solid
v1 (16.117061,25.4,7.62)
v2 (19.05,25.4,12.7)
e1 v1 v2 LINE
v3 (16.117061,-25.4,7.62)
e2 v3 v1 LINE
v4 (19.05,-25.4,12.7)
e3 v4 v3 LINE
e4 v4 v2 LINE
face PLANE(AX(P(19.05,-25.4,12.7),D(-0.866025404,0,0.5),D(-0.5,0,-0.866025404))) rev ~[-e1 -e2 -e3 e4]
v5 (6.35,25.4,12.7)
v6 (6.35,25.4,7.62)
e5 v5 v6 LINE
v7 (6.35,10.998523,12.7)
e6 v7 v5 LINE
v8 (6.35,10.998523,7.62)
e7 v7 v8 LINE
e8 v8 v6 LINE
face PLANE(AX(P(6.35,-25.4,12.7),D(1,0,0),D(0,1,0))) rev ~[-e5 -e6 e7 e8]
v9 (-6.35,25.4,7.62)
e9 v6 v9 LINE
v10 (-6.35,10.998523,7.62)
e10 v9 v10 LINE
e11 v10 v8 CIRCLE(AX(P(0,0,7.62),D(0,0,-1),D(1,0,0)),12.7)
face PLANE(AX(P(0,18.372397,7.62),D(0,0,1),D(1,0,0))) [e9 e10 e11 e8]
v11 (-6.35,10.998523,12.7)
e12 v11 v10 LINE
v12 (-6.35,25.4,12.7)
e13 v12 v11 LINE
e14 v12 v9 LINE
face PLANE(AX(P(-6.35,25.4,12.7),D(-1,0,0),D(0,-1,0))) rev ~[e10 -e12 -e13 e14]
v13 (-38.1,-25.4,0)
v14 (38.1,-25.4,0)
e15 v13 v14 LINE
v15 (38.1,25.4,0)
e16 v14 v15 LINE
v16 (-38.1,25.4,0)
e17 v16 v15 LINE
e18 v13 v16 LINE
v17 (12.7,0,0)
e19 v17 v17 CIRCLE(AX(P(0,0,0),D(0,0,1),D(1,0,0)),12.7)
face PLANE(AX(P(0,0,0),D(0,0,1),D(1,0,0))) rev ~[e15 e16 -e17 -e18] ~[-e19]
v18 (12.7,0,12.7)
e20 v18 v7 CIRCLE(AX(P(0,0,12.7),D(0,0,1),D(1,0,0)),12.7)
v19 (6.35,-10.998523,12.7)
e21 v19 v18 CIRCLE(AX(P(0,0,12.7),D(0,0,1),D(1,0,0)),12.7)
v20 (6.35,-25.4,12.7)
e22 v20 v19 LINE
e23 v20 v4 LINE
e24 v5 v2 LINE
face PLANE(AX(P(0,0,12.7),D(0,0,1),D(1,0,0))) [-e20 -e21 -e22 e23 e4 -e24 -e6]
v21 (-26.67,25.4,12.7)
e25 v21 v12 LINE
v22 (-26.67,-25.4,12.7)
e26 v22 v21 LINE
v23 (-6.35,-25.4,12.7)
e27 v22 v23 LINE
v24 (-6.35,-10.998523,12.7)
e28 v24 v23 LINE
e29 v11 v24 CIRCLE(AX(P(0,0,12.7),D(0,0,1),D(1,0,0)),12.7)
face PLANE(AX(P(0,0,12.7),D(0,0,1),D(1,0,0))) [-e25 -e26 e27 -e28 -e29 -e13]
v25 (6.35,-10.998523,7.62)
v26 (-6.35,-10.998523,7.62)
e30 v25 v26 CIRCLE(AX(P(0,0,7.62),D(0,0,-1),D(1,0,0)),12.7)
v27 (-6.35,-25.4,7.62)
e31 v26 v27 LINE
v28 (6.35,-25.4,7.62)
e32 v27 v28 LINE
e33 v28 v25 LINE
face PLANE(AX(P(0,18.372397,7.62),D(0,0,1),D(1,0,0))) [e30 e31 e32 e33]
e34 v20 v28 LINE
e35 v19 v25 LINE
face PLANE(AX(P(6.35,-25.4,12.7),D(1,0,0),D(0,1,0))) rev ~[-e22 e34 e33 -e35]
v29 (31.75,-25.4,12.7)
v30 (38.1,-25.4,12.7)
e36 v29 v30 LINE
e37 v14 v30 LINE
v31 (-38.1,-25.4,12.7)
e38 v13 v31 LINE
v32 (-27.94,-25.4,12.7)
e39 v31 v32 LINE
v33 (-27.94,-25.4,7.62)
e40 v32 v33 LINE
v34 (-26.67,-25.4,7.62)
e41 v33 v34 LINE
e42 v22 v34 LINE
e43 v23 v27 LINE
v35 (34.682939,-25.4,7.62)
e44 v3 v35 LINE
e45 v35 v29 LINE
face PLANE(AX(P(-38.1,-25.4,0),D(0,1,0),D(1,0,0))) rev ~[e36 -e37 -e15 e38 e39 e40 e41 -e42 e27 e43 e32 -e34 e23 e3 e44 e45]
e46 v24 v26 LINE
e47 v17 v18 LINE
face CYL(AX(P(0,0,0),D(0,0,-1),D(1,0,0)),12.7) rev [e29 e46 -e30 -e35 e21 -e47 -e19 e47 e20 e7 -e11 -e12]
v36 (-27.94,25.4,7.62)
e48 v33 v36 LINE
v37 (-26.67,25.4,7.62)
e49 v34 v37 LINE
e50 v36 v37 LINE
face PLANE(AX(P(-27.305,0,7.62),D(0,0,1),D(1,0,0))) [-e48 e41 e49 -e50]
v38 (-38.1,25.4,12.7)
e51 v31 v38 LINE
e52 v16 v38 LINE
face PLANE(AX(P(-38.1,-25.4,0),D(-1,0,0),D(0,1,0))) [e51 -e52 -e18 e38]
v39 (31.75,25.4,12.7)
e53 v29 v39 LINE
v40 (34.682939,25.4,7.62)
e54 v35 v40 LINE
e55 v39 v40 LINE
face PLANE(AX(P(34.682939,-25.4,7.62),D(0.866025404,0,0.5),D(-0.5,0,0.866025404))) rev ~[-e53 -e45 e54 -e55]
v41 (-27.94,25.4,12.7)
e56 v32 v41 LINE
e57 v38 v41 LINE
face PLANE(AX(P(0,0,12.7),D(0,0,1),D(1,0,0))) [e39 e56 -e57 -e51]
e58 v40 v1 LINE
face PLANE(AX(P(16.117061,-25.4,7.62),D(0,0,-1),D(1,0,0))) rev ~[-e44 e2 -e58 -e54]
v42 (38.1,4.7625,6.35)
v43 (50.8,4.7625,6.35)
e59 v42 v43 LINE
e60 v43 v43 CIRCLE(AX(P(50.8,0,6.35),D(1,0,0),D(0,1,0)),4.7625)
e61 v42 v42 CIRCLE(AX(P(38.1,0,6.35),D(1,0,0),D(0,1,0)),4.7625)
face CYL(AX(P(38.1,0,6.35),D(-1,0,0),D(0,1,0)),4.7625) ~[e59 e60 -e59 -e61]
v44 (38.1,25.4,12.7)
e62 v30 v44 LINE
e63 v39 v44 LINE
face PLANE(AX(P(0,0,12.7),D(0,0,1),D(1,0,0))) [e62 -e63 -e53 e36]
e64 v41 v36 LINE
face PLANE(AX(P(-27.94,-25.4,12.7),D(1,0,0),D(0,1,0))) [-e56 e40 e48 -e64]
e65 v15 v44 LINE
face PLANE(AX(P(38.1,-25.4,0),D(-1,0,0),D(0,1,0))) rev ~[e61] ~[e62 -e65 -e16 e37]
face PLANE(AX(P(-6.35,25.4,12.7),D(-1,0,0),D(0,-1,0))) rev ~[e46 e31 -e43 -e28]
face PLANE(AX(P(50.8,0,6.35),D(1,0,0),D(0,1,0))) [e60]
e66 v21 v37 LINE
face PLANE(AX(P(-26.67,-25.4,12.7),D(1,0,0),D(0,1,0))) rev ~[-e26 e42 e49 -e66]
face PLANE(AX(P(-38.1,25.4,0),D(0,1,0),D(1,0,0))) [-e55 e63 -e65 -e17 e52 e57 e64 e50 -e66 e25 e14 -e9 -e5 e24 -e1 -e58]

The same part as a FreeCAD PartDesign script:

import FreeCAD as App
import Part
import Sketcher

V = App.Vector
Q = App.Units.Quantity

doc = App.newDocument("Part")
params = doc.addObject("Spreadsheet::Sheet", "Params")
for row, (alias, value) in enumerate([
    ("sketch1_diameter", "1 in"),
    ("sketch1_width", "3 in"),
    ("sketch1_height", "2 in"),
    ("pad1_length", "0.5 in"),
    ("sketch2_height", "2 in"),
    ("sketch2_width", "0.5 in"),
    ("sketch2_width2", "0.05 in"),
    ("pocket1_length", "0.2 in"),
    ("sketch3_width", "0.5 in"),
    ("sketch4_diameter", "0.375 in"),
    ("pad2_length", "0.5 in"),
], start=1):
    params.set(f"A{row}", alias)
    params.set(f"B{row}", "=" + value)
    params.setAlias(f"B{row}", alias)

body = doc.addObject("PartDesign::Body", "Body")

# Sketch on XY plane
sketch1 = body.newObject("Sketcher::SketchObject", "Sketch")
sketch1.AttachmentSupport = (doc.getObject("XY_Plane"), [""])
sketch1.MapMode = "FlatFace"
sketch1.addGeometry(Part.LineSegment(V(-38, 25, 0), V(-38, -25, 0)), False)
sketch1.addGeometry(Part.LineSegment(V(-38, -25, 0), V(38, -25, 0)), False)
sketch1.addGeometry(Part.LineSegment(V(38, -25, 0), V(38, 25, 0)), False)
sketch1.addGeometry(Part.LineSegment(V(38, 25, 0), V(-38, 25, 0)), False)
sketch1.addGeometry(Part.Circle(V(0, 0, 0), V(0, 0, 1), 13), False)
sketch1.addConstraint(Sketcher.Constraint("Coincident", 0, 2, 1, 1))
sketch1.addConstraint(Sketcher.Constraint("Coincident", 1, 2, 2, 1))
sketch1.addConstraint(Sketcher.Constraint("Coincident", 2, 2, 3, 1))
sketch1.addConstraint(Sketcher.Constraint("Coincident", 3, 2, 0, 1))
sketch1.addConstraint(Sketcher.Constraint("Vertical", 0))
sketch1.addConstraint(Sketcher.Constraint("Horizontal", 1))
sketch1.addConstraint(Sketcher.Constraint("Vertical", 2))
sketch1.addConstraint(Sketcher.Constraint("Horizontal", 3))
sketch1.addConstraint(Sketcher.Constraint("Coincident", 4, 3, -1, 1))
sketch1.addConstraint(Sketcher.Constraint("Symmetric", 0, 2, 2, 2, -1, 1))
sketch1.addConstraint(Sketcher.Constraint("Diameter", 4, Q("1 in")))
sketch1.addConstraint(Sketcher.Constraint("DistanceX", 1, 1, 1, 2, Q("3 in")))
sketch1.addConstraint(Sketcher.Constraint("DistanceY", 0, 2, 0, 1, Q("2 in")))
sketch1.setExpression("Constraints[10]", "Params.sketch1_diameter")
sketch1.setExpression("Constraints[11]", "Params.sketch1_width")
sketch1.setExpression("Constraints[12]", "Params.sketch1_height")
pad1 = body.newObject("PartDesign::Pad", "Pad")
pad1.Profile = sketch1
pad1.setExpression("Length", "Params.pad1_length")

# Sketch on XY plane
sketch2 = body.newObject("Sketcher::SketchObject", "Sketch001")
sketch2.AttachmentSupport = (doc.getObject("XY_Plane"), [""])
sketch2.MapMode = "FlatFace"
sketch2.AttachmentOffset = App.Placement(V(0, 0, 0.5 * 25.4), App.Rotation())
sketch2.addGeometry(Part.LineSegment(V(-27.9, 25.4, 0), V(-27.9, -25.4, 0)), False)
sketch2.addGeometry(Part.LineSegment(V(-27.9, -25.4, 0), V(-26.7, -25.4, 0)), False)
sketch2.addGeometry(Part.LineSegment(V(-26.7, -25.4, 0), V(-26.7, 25.4, 0)), False)
sketch2.addGeometry(Part.LineSegment(V(-26.7, 25.4, 0), V(-27.9, 25.4, 0)), False)
sketch2.addGeometry(Part.LineSegment(V(6.3, 25.4, 0), V(-6.3, 25.4, 0)), False)
sketch2.addGeometry(Part.LineSegment(V(-6.3, 25.4, 0), V(-6.3, -25.4, 0)), False)
sketch2.addGeometry(Part.LineSegment(V(-6.3, -25.4, 0), V(6.3, -25.4, 0)), False)
sketch2.addGeometry(Part.LineSegment(V(6.3, -25.4, 0), V(6.3, 25.4, 0)), False)
sketch2.addConstraint(Sketcher.Constraint("Coincident", 0, 2, 1, 1))
sketch2.addConstraint(Sketcher.Constraint("Coincident", 1, 2, 2, 1))
sketch2.addConstraint(Sketcher.Constraint("Coincident", 2, 2, 3, 1))
sketch2.addConstraint(Sketcher.Constraint("Coincident", 3, 2, 0, 1))
sketch2.addConstraint(Sketcher.Constraint("Coincident", 4, 2, 5, 1))
sketch2.addConstraint(Sketcher.Constraint("Coincident", 5, 2, 6, 1))
sketch2.addConstraint(Sketcher.Constraint("Coincident", 6, 2, 7, 1))
sketch2.addConstraint(Sketcher.Constraint("Coincident", 7, 2, 4, 1))
sketch2.addConstraint(Sketcher.Constraint("Vertical", 0))
sketch2.addConstraint(Sketcher.Constraint("Horizontal", 1))
sketch2.addConstraint(Sketcher.Constraint("Vertical", 2))
sketch2.addConstraint(Sketcher.Constraint("Horizontal", 3))
sketch2.addConstraint(Sketcher.Constraint("Horizontal", 4))
sketch2.addConstraint(Sketcher.Constraint("Vertical", 5))
sketch2.addConstraint(Sketcher.Constraint("Horizontal", 6))
sketch2.addConstraint(Sketcher.Constraint("Vertical", 7))
sketch2.addConstraint(Sketcher.Constraint("Symmetric", 4, 2, 6, 2, -1, 1))
sketch2.addConstraint(Sketcher.Constraint("Horizontal", 3, 2, 4, 2))
sketch2.addConstraint(Sketcher.Constraint("Horizontal", 1, 2, 5, 2))
sketch2.addConstraint(Sketcher.Constraint("DistanceY", 0, 2, 0, 1, Q("2 in")))
sketch2.addConstraint(Sketcher.Constraint("DistanceX", 4, 2, 4, 1, Q("0.5 in")))
sketch2.addConstraint(Sketcher.Constraint("DistanceX", 1, 1, 1, 2, Q("0.05 in")))
sketch2.addConstraint(Sketcher.Constraint("DistanceX", 0, 2, -1, 1, Q("1.1 in")))
sketch2.setExpression("Constraints[19]", "Params.sketch2_height")
sketch2.setExpression("Constraints[20]", "Params.sketch2_width")
sketch2.setExpression("Constraints[21]", "Params.sketch2_width2")
pocket1 = body.newObject("PartDesign::Pocket", "Pocket")
pocket1.Profile = sketch2
pocket1.setExpression("Length", "Params.pocket1_length")

# Sketch on XZ plane
sketch3 = body.newObject("Sketcher::SketchObject", "Sketch002")
sketch3.AttachmentSupport = (doc.getObject("XZ_Plane"), [""])
sketch3.MapMode = "FlatFace"
sketch3.AttachmentOffset = App.Placement(V(0, 0, 1 * 25.4), App.Rotation())
sketch3.addGeometry(Part.LineSegment(V(32, 13, 0), V(19, 13, 0)), False)
sketch3.addGeometry(Part.LineSegment(V(19, 13, 0), V(16, 8, 0)), False)
sketch3.addGeometry(Part.LineSegment(V(16, 8, 0), V(35, 8, 0)), False)
sketch3.addGeometry(Part.LineSegment(V(35, 8, 0), V(32, 13, 0)), False)
sketch3.addConstraint(Sketcher.Constraint("Coincident", 0, 2, 1, 1))
sketch3.addConstraint(Sketcher.Constraint("Coincident", 1, 2, 2, 1))
sketch3.addConstraint(Sketcher.Constraint("Coincident", 2, 2, 3, 1))
sketch3.addConstraint(Sketcher.Constraint("Coincident", 3, 2, 0, 1))
sketch3.addConstraint(Sketcher.Constraint("Horizontal", 0))
sketch3.addConstraint(Sketcher.Constraint("Horizontal", 2))
sketch3.addConstraint(Sketcher.Constraint("Equal", 1, 3))
sketch3.addConstraint(Sketcher.Constraint("DistanceX", 0, 2, 0, 1, Q("0.5 in")))
sketch3.addConstraint(Sketcher.Constraint("Angle", 1, Q("-120 deg")))
sketch3.addConstraint(Sketcher.Constraint("DistanceY", -1, 1, 0, 2, Q("0.5 in")))
sketch3.addConstraint(Sketcher.Constraint("DistanceY", -1, 1, 1, 2, Q("0.3 in")))
sketch3.addConstraint(Sketcher.Constraint("DistanceX", -1, 1, 0, 2, Q("0.75 in")))
sketch3.setExpression("Constraints[7]", "Params.sketch3_width")
pocket2 = body.newObject("PartDesign::Pocket", "Pocket001")
pocket2.Profile = sketch3
pocket2.Type = "ThroughAll"

# Sketch on YZ plane
sketch4 = body.newObject("Sketcher::SketchObject", "Sketch003")
sketch4.AttachmentSupport = (doc.getObject("YZ_Plane"), [""])
sketch4.MapMode = "FlatFace"
sketch4.AttachmentOffset = App.Placement(V(0, 0, 1.5 * 25.4), App.Rotation())
sketch4.addGeometry(Part.Circle(V(0, 6.3, 0), V(0, 0, 1), 4.8), False)
sketch4.addConstraint(Sketcher.Constraint("PointOnObject", 0, 3, -2))
sketch4.addConstraint(Sketcher.Constraint("Diameter", 0, Q("0.375 in")))
sketch4.addConstraint(Sketcher.Constraint("DistanceY", -1, 1, 0, 3, Q("0.25 in")))
sketch4.setExpression("Constraints[1]", "Params.sketch4_diameter")
pad2 = body.newObject("PartDesign::Pad", "Pad001")
pad2.Profile = sketch4
pad2.setExpression("Length", "Params.pad2_length")

doc.recompute()
